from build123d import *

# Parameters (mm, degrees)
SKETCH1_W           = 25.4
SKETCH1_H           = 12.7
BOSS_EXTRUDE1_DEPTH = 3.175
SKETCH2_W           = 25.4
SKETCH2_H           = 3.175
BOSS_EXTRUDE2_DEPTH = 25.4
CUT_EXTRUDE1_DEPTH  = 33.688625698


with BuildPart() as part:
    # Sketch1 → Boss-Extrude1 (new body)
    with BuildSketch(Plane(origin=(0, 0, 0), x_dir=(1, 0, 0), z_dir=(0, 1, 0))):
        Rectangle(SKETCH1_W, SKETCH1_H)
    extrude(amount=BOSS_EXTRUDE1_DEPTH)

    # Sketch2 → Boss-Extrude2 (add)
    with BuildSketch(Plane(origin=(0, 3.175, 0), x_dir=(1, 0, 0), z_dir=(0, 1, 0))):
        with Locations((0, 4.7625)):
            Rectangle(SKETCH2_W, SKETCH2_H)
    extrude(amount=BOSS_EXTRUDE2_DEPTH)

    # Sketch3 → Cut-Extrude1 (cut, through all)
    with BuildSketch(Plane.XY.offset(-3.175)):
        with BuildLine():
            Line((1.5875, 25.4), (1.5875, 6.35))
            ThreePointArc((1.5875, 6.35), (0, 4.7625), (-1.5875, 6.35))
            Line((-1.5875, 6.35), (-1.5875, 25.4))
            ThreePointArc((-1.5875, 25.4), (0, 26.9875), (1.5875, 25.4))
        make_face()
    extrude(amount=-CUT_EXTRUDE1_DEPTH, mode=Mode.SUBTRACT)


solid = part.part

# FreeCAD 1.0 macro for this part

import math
import FreeCAD as App
import Part
import Sketcher

V = App.Vector
Q = App.Units.Quantity


def add_polygon(sketch, points):
    """Adds a closed chain of lines whose ends are joined by coincident constraints."""
    first, n = sketch.GeometryCount, len(points)
    for a, b in zip(points, points[1:] + points[:1]):
        sketch.addGeometry(Part.LineSegment(App.Vector(*a, 0), App.Vector(*b, 0)), False)
    for i in range(n):
        sketch.addConstraint(Sketcher.Constraint("Coincident", first + i, 2, first + (i + 1) % n, 1))

doc = App.newDocument("Part")
params = doc.addObject("Spreadsheet::Sheet", "Params")
for row, (alias, value) in enumerate([
    ("sketch1_width", "1 in"),
    ("sketch1_height", "0.5 in"),
    ("pad1_length", "0.125 in"),
    ("sketch2_width", "1 in"),
    ("sketch2_height", "0.125 in"),
    ("pad2_length", "1 in"),
    ("sketch3_radius", "0.0625 in"),
    ("sketch3_height", "0.75 in"),
], start=1):
    params.set(f"A{row}", alias)
    params.set(f"B{row}", "=" + value)
    params.setAlias(f"B{row}", alias)

body = doc.addObject("PartDesign::Body", "Body")

# Sketch on XZ plane
sketch1 = body.newObject("Sketcher::SketchObject", "Sketch")
sketch1.AttachmentSupport = (doc.getObject("XZ_Plane"), [""])
sketch1.MapMode = "FlatFace"
add_polygon(sketch1, [(-12.7, -6.35), (-12.7, 6.35), (12.7, 6.35), (12.7, -6.35)])  # lines 0-3
sketch1.addConstraint([
    Sketcher.Constraint("Vertical", 0),
    Sketcher.Constraint("Horizontal", 1),
    Sketcher.Constraint("Vertical", 2),
    Sketcher.Constraint("Horizontal", 3),
    Sketcher.Constraint("Symmetric", 0, 2, 2, 2, -1, 1),
    Sketcher.Constraint("DistanceX", 1, 1, 1, 2, Q("1 in")),
    Sketcher.Constraint("DistanceY", 0, 1, 0, 2, Q("0.5 in")),
])
sketch1.setExpression("Constraints[9]", "Params.sketch1_width")
sketch1.setExpression("Constraints[10]", "Params.sketch1_height")
pad1 = body.newObject("PartDesign::Pad", "Pad")
pad1.Profile = sketch1
pad1.setExpression("Length", "Params.pad1_length")
pad1.Reversed = True

# Sketch on XZ plane
sketch2 = body.newObject("Sketcher::SketchObject", "Sketch001")
sketch2.AttachmentSupport = (doc.getObject("XZ_Plane"), [""])
sketch2.MapMode = "FlatFace"
sketch2.AttachmentOffset = App.Placement(V(0, 0, -0.125 * 25.4), App.Rotation())
add_polygon(sketch2, [(-12.7, -6.35), (-12.7, -3.175), (12.7, -3.175), (12.7, -6.35)])  # lines 0-3
sketch2.addConstraint([
    Sketcher.Constraint("Vertical", 0),
    Sketcher.Constraint("Horizontal", 1),
    Sketcher.Constraint("Vertical", 2),
    Sketcher.Constraint("Horizontal", 3),
    Sketcher.Constraint("DistanceX", 1, 1, 1, 2, Q("1 in")),
    Sketcher.Constraint("DistanceX", 0, 2, -1, 1, Q("0.5 in")),
    Sketcher.Constraint("DistanceY", 0, 1, 0, 2, Q("0.125 in")),
    Sketcher.Constraint("DistanceY", 2, 2, -1, 1, Q("0.25 in")),
])
sketch2.setExpression("Constraints[8]", "Params.sketch2_width")
sketch2.setExpression("Constraints[10]", "Params.sketch2_height")
pad2 = body.newObject("PartDesign::Pad", "Pad001")
pad2.Profile = sketch2
pad2.setExpression("Length", "Params.pad2_length")
pad2.Reversed = True

# Sketch on XY plane
sketch3 = body.newObject("Sketcher::SketchObject", "Sketch002")
sketch3.AttachmentSupport = (doc.getObject("XY_Plane"), [""])
sketch3.MapMode = "FlatFace"
sketch3.AttachmentOffset = App.Placement(V(0, 0, -0.125 * 25.4), App.Rotation())
sketch3.addGeometry([
    Part.LineSegment(V(1.5875, 6.35, 0), V(1.5875, 25.4, 0)),
    Part.ArcOfCircle(Part.Circle(V(0, 25.4, 0), V(0, 0, 1), 1.5875), math.radians(0), math.radians(180)),
    Part.LineSegment(V(-1.5875, 25.4, 0), V(-1.5875, 6.35, 0)),
    Part.ArcOfCircle(Part.Circle(V(0, 6.35, 0), V(0, 0, 1), 1.5875), math.radians(180), math.radians(360)),
], False)
sketch3.addConstraint([
    Sketcher.Constraint("Tangent", 0, 2, 1, 1),
    Sketcher.Constraint("Tangent", 1, 2, 2, 1),
    Sketcher.Constraint("Tangent", 2, 2, 3, 1),
    Sketcher.Constraint("Tangent", 3, 2, 0, 1),
    Sketcher.Constraint("Vertical", 0),
    Sketcher.Constraint("Vertical", 2),
    Sketcher.Constraint("PointOnObject", 1, 3, -2),
    Sketcher.Constraint("DistanceY", -1, 1, 1, 3, Q("1 in")),
    Sketcher.Constraint("Radius", 1, Q("0.0625 in")),
    Sketcher.Constraint("DistanceY", 0, 1, 0, 2, Q("0.75 in")),
])
sketch3.setExpression("Constraints[8]", "Params.sketch3_radius")
sketch3.setExpression("Constraints[9]", "Params.sketch3_height")
pocket1 = body.newObject("PartDesign::Pocket", "Pocket")
pocket1.Profile = sketch3
pocket1.Type = "ThroughAll"

doc.recompute()
